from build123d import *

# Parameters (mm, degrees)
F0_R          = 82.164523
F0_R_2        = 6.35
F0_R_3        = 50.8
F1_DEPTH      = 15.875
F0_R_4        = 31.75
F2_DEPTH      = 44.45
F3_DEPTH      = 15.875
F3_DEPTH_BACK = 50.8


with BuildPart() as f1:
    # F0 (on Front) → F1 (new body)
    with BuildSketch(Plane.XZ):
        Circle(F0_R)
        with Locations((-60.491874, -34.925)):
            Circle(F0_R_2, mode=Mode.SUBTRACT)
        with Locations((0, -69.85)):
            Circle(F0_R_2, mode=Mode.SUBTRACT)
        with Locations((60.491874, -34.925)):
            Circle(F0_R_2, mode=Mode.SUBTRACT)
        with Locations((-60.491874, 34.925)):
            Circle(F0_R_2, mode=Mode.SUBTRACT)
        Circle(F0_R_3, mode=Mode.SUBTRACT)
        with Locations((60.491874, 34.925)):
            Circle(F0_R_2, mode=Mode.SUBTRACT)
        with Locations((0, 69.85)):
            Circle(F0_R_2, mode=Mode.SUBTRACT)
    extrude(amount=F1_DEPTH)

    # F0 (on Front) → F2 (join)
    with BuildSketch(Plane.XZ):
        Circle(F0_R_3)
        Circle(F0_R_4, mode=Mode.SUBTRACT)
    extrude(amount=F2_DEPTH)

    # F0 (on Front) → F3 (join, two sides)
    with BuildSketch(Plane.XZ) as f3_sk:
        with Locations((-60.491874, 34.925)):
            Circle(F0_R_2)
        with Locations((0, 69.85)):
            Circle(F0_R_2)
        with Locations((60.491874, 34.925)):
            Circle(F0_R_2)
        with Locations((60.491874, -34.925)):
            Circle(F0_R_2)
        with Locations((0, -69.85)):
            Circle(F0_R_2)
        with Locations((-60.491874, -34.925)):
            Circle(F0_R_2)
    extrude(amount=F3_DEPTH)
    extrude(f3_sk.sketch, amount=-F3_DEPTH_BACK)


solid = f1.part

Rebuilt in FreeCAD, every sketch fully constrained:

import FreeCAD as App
import Part
import Sketcher
Q = App.Units.Quantity

doc = App.newDocument("Part")
body = doc.addObject("PartDesign::Body", "Body")

sketch1 = body.newObject("Sketcher::SketchObject", "Sketch")
sketch1.AttachmentSupport = (doc.getObject("XZ_Plane"), [""])
sketch1.MapMode = "FlatFace"
sketch1.addGeometry([
    Part.Circle(App.Vector(0, 0, 0), App.Vector(0, 0, 1), 82),
    Part.Circle(App.Vector(0, -70, 0), App.Vector(0, 0, 1), 6),
    Part.Circle(App.Vector(-60, -35, 0), App.Vector(0, 0, 1), 6),
    Part.Circle(App.Vector(60, -35, 0), App.Vector(0, 0, 1), 6),
    Part.Circle(App.Vector(-60, 35, 0), App.Vector(0, 0, 1), 6),
    Part.Circle(App.Vector(0, 0, 0), App.Vector(0, 0, 1), 51),
    Part.Circle(App.Vector(0, 70, 0), App.Vector(0, 0, 1), 6),
    Part.Circle(App.Vector(60, 35, 0), App.Vector(0, 0, 1), 6),
], False)
sketch1.addConstraint([
    Sketcher.Constraint("Coincident", 0, 3, -1, 1),
    Sketcher.Constraint("Coincident", 5, 3, -1, 1),
    Sketcher.Constraint("Equal", 1, 2),
    Sketcher.Constraint("Equal", 2, 3),
    Sketcher.Constraint("Equal", 3, 4),
    Sketcher.Constraint("Equal", 4, 6),
    Sketcher.Constraint("Equal", 6, 7),
    Sketcher.Constraint("Symmetric", 3, 3, 4, 3, -1, 1),
    Sketcher.Constraint("Symmetric", 1, 3, 6, 3, -1, 1),
    Sketcher.Constraint("Symmetric", 2, 3, 7, 3, -1, 1),
    Sketcher.Constraint("Symmetric", 2, 3, 3, 3, -2),
    Sketcher.Constraint("PointOnObject", 1, 3, -2),
    Sketcher.Constraint("Diameter", 5, Q("4 in")),
    Sketcher.Constraint("Diameter", 1, Q("0.5 in")),
    Sketcher.Constraint("DistanceY", 1, 3, -1, 1, Q("2.75 in")),
    Sketcher.Constraint("DistanceY", 2, 3, 4, 3, Q("2.75 in")),
    Sketcher.Constraint("Diameter", 0, 164.329046),
    Sketcher.Constraint("DistanceX", 2, 3, 3, 3, 120.983748),
])
pad1 = body.newObject("PartDesign::Pad", "Pad")
pad1.Profile = sketch1
pad1.Length = Q("0.625 in")

sketch2 = body.newObject("Sketcher::SketchObject", "Sketch001")
sketch2.AttachmentSupport = (doc.getObject("XZ_Plane"), [""])
sketch2.MapMode = "FlatFace"
sketch2.addGeometry([
    Part.Circle(App.Vector(0, 0, 0), App.Vector(0, 0, 1), 51),
    Part.Circle(App.Vector(0, 0, 0), App.Vector(0, 0, 1), 32),
], False)
sketch2.addConstraint([
    Sketcher.Constraint("Coincident", 0, 3, -1, 1),
    Sketcher.Constraint("Coincident", 1, 3, -1, 1),
    Sketcher.Constraint("Diameter", 0, Q("4 in")),
    Sketcher.Constraint("Diameter", 1, Q("2.5 in")),
])
pad2 = body.newObject("PartDesign::Pad", "Pad001")
pad2.Profile = sketch2
pad2.Length = Q("1.75 in")

sketch3 = body.newObject("Sketcher::SketchObject", "Sketch002")
sketch3.AttachmentSupport = (doc.getObject("XZ_Plane"), [""])
sketch3.MapMode = "FlatFace"
sketch3.addGeometry([
    Part.Circle(App.Vector(-60, 35, 0), App.Vector(0, 0, 1), 6),
    Part.Circle(App.Vector(0, 70, 0), App.Vector(0, 0, 1), 6),
    Part.Circle(App.Vector(60, 35, 0), App.Vector(0, 0, 1), 6),
    Part.Circle(App.Vector(60, -35, 0), App.Vector(0, 0, 1), 6),
    Part.Circle(App.Vector(0, -70, 0), App.Vector(0, 0, 1), 6),
    Part.Circle(App.Vector(-60, -35, 0), App.Vector(0, 0, 1), 6),
], False)
sketch3.addConstraint([
    Sketcher.Constraint("Equal", 0, 1),
    Sketcher.Constraint("Equal", 1, 2),
    Sketcher.Constraint("Equal", 2, 3),
    Sketcher.Constraint("Equal", 3, 4),
    Sketcher.Constraint("Equal", 4, 5),
    Sketcher.Constraint("Symmetric", 0, 3, 3, 3, -1, 1),
    Sketcher.Constraint("Symmetric", 1, 3, 4, 3, -1, 1),
    Sketcher.Constraint("Symmetric", 2, 3, 5, 3, -1, 1),
    Sketcher.Constraint("Symmetric", 0, 3, 2, 3, -2),
    Sketcher.Constraint("PointOnObject", 1, 3, -2),
    Sketcher.Constraint("Diameter", 0, Q("0.5 in")),
    Sketcher.Constraint("DistanceY", 4, 3, 1, 3, Q("5.5 in")),
    Sketcher.Constraint("DistanceY", 3, 3, 2, 3, Q("2.75 in")),
    Sketcher.Constraint("DistanceX", 0, 3, 2, 3, 120.983748),
])
pad3 = body.newObject("PartDesign::Pad", "Pad002")
pad3.Profile = sketch3
pad3.Type = "TwoLengths"
pad3.Length = Q("0.625 in")
pad3.Length2 = Q("2 in")

doc.recompute()
